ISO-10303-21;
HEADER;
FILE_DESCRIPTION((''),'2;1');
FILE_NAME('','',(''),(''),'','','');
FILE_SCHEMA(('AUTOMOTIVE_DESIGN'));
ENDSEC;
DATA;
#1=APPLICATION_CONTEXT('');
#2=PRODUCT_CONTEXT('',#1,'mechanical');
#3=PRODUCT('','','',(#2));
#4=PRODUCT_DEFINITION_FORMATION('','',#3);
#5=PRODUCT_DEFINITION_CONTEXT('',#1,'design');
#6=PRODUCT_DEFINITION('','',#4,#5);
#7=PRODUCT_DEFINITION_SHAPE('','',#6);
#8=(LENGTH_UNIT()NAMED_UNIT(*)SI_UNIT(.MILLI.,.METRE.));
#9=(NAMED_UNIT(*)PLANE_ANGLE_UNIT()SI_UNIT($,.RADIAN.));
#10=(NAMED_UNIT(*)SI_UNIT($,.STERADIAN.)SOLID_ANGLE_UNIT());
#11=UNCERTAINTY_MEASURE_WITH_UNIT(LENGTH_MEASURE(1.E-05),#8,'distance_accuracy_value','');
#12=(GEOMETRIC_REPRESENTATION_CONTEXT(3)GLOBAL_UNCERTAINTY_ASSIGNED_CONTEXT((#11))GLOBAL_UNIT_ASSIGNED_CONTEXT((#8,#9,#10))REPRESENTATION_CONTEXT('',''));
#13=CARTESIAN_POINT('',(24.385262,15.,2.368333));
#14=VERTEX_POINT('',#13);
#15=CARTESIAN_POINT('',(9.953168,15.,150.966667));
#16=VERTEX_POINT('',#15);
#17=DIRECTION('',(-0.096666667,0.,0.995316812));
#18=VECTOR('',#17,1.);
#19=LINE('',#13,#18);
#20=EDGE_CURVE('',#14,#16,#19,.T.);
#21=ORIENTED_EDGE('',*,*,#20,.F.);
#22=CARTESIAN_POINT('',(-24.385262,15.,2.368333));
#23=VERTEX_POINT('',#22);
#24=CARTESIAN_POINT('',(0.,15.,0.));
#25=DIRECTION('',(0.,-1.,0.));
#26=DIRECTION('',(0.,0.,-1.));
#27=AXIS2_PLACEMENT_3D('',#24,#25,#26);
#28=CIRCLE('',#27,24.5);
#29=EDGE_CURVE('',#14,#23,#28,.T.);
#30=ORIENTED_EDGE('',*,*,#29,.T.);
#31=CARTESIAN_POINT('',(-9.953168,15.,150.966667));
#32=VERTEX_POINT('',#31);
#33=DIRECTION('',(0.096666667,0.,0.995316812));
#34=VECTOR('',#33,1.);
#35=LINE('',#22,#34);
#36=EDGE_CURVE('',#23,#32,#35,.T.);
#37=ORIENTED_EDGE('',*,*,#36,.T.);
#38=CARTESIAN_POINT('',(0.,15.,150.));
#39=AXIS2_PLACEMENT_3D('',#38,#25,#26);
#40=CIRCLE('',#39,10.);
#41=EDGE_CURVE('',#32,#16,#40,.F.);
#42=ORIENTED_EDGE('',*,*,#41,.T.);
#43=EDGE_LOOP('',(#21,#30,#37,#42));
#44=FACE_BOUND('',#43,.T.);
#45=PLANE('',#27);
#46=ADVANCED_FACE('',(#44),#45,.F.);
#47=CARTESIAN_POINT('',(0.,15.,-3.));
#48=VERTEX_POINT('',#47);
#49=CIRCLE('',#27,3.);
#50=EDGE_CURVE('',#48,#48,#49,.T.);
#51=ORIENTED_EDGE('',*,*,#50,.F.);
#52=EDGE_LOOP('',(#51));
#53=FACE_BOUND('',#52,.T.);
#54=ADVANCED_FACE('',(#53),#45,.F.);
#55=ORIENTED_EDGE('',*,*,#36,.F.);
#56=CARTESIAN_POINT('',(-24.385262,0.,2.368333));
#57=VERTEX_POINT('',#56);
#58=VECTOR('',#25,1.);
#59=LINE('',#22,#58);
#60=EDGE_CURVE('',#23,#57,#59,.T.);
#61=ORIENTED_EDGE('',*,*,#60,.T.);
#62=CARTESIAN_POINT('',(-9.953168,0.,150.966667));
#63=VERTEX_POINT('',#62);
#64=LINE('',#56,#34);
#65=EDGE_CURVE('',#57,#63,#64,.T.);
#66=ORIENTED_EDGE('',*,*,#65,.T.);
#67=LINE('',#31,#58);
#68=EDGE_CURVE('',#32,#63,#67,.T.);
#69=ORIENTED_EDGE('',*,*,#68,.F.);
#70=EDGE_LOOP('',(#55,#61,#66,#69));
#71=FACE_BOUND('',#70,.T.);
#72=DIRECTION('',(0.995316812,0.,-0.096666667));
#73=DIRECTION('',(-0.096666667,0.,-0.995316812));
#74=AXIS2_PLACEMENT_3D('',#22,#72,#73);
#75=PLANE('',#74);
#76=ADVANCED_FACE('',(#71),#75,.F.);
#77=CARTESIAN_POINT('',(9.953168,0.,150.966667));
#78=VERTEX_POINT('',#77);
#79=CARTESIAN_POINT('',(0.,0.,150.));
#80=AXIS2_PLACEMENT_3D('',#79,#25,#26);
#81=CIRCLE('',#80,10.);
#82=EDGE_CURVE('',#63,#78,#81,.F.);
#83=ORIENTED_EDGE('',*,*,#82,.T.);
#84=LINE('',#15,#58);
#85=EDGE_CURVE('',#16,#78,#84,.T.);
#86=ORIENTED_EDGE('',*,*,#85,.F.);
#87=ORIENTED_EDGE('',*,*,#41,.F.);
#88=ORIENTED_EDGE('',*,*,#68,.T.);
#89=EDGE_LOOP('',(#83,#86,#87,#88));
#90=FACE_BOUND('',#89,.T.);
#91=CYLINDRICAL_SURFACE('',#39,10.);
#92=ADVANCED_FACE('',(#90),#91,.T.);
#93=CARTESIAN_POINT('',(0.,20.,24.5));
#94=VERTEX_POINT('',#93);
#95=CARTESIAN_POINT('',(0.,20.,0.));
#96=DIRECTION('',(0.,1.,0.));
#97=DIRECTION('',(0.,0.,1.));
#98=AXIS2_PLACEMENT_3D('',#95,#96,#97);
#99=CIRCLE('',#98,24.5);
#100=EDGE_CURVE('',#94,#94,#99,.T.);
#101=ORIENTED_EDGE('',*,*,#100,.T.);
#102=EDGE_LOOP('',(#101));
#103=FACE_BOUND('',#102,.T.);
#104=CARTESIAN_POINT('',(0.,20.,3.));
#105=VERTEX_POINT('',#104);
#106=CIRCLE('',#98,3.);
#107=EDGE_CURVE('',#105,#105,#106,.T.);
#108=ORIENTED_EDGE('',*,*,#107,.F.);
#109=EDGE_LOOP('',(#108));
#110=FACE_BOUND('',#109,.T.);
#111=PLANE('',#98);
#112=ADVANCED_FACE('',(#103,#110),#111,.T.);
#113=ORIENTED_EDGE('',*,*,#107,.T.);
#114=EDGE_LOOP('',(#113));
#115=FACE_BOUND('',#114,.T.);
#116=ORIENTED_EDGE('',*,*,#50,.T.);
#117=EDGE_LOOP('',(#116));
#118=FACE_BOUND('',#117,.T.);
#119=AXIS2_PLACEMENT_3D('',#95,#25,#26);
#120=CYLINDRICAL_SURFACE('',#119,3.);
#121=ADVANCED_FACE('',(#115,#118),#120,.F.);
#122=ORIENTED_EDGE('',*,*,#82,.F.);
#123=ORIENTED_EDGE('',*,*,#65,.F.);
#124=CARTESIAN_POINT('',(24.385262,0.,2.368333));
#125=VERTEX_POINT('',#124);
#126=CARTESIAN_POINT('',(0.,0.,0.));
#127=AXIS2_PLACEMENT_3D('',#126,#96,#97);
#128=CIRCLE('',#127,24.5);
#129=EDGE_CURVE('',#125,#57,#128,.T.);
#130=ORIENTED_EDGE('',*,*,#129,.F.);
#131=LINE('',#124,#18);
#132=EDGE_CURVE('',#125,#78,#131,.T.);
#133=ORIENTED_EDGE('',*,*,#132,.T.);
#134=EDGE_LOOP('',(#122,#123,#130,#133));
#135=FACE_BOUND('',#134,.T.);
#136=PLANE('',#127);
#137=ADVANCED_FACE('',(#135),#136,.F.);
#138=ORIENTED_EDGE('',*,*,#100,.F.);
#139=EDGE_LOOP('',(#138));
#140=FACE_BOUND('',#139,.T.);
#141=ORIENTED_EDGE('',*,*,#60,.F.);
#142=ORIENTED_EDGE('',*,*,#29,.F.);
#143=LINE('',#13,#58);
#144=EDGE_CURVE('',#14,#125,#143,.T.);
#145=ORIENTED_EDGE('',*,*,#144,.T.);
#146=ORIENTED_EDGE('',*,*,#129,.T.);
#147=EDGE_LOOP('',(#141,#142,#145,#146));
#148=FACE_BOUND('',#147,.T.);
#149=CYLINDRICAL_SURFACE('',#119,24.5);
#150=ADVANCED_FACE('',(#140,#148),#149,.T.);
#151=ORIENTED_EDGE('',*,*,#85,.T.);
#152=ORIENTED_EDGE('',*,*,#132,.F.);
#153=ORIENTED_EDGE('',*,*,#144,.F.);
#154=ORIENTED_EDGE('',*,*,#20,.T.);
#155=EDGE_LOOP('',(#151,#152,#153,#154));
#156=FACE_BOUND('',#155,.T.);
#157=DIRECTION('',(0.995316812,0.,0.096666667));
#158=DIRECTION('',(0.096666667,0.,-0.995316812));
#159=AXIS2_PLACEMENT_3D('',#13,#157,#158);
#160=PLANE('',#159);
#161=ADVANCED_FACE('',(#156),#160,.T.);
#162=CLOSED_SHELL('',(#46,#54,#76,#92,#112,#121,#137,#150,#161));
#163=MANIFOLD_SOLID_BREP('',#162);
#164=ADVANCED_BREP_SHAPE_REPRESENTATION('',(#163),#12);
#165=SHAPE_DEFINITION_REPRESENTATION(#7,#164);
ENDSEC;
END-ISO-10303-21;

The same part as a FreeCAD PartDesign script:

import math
import FreeCAD as App
import Part
import Sketcher

V = App.Vector

doc = App.newDocument("Part")
body = doc.addObject("PartDesign::Body", "Body")

# Sketch on XZ plane
sketch1 = doc.addObject("Sketcher::SketchObject", "Sketch")
body.addObject(sketch1)
sketch1.AttachmentSupport = (doc.XZ_Plane, [""])
sketch1.MapMode = "FlatFace"
sketch1.addGeometry([
    Part.Circle(V(0, 0, 0), V(0, 0, 1), 24.5),
    Part.Circle(V(0, 0, 0), V(0, 0, 1), 3),
], False)
sketch1.addConstraint([
    Sketcher.Constraint("Coincident", 0, 3, -1, 1),
    Sketcher.Constraint("Coincident", 1, 3, -1, 1),
    Sketcher.Constraint("Diameter", 0, 49.0),
    Sketcher.Constraint("Diameter", 1, 6.0),
])
pad1 = doc.addObject("PartDesign::Pad", "Pad")
body.addObject(pad1)
pad1.Profile = sketch1
pad1.Length = 20
pad1.Reversed = True

# Sketch on XZ plane
sketch2 = doc.addObject("Sketcher::SketchObject", "Sketch001")
body.addObject(sketch2)
sketch2.AttachmentSupport = (doc.XZ_Plane, [""])
sketch2.MapMode = "FlatFace"
sketch2.addGeometry([
    Part.LineSegment(V(-10, 151, 0), V(-24.4, 2.4, 0)),  # 0
    Part.ArcOfCircle(Part.Circle(V(0, 0, 0), V(0, 0, 1), 24.5), math.radians(6), math.radians(174)),  # 1
    Part.LineSegment(V(24.4, 2.4, 0), V(10, 151, 0)),  # 2
    Part.ArcOfCircle(Part.Circle(V(0, 150, 0), V(0, 0, 1), 10), math.radians(6), math.radians(174)),  # 3
    Part.Circle(V(0, 0, 0), V(0, 0, 1), 3),  # 4
], False)
sketch2.addConstraint([
    Sketcher.Constraint("Tangent", 0, 2, 1, 2),
    Sketcher.Constraint("Tangent", 1, 1, 2, 1),
    Sketcher.Constraint("Tangent", 2, 2, 3, 1),
    Sketcher.Constraint("Tangent", 3, 2, 0, 1),
    Sketcher.Constraint("Coincident", 1, 3, -1, 1),
    Sketcher.Constraint("Coincident", 4, 3, -1, 1),
    Sketcher.Constraint("PointOnObject", 3, 3, -2),
    Sketcher.Constraint("Diameter", 4, 6.0),
    Sketcher.Constraint("Radius", 3, 10.0),
    Sketcher.Constraint("Radius", 1, 24.5),
    Sketcher.Constraint("DistanceY", -1, 1, 3, 3, 150.0),
])
pad2 = doc.addObject("PartDesign::Pad", "Pad001")
body.addObject(pad2)
pad2.Profile = sketch2
pad2.Length = 15
pad2.Reversed = True

doc.recompute()
